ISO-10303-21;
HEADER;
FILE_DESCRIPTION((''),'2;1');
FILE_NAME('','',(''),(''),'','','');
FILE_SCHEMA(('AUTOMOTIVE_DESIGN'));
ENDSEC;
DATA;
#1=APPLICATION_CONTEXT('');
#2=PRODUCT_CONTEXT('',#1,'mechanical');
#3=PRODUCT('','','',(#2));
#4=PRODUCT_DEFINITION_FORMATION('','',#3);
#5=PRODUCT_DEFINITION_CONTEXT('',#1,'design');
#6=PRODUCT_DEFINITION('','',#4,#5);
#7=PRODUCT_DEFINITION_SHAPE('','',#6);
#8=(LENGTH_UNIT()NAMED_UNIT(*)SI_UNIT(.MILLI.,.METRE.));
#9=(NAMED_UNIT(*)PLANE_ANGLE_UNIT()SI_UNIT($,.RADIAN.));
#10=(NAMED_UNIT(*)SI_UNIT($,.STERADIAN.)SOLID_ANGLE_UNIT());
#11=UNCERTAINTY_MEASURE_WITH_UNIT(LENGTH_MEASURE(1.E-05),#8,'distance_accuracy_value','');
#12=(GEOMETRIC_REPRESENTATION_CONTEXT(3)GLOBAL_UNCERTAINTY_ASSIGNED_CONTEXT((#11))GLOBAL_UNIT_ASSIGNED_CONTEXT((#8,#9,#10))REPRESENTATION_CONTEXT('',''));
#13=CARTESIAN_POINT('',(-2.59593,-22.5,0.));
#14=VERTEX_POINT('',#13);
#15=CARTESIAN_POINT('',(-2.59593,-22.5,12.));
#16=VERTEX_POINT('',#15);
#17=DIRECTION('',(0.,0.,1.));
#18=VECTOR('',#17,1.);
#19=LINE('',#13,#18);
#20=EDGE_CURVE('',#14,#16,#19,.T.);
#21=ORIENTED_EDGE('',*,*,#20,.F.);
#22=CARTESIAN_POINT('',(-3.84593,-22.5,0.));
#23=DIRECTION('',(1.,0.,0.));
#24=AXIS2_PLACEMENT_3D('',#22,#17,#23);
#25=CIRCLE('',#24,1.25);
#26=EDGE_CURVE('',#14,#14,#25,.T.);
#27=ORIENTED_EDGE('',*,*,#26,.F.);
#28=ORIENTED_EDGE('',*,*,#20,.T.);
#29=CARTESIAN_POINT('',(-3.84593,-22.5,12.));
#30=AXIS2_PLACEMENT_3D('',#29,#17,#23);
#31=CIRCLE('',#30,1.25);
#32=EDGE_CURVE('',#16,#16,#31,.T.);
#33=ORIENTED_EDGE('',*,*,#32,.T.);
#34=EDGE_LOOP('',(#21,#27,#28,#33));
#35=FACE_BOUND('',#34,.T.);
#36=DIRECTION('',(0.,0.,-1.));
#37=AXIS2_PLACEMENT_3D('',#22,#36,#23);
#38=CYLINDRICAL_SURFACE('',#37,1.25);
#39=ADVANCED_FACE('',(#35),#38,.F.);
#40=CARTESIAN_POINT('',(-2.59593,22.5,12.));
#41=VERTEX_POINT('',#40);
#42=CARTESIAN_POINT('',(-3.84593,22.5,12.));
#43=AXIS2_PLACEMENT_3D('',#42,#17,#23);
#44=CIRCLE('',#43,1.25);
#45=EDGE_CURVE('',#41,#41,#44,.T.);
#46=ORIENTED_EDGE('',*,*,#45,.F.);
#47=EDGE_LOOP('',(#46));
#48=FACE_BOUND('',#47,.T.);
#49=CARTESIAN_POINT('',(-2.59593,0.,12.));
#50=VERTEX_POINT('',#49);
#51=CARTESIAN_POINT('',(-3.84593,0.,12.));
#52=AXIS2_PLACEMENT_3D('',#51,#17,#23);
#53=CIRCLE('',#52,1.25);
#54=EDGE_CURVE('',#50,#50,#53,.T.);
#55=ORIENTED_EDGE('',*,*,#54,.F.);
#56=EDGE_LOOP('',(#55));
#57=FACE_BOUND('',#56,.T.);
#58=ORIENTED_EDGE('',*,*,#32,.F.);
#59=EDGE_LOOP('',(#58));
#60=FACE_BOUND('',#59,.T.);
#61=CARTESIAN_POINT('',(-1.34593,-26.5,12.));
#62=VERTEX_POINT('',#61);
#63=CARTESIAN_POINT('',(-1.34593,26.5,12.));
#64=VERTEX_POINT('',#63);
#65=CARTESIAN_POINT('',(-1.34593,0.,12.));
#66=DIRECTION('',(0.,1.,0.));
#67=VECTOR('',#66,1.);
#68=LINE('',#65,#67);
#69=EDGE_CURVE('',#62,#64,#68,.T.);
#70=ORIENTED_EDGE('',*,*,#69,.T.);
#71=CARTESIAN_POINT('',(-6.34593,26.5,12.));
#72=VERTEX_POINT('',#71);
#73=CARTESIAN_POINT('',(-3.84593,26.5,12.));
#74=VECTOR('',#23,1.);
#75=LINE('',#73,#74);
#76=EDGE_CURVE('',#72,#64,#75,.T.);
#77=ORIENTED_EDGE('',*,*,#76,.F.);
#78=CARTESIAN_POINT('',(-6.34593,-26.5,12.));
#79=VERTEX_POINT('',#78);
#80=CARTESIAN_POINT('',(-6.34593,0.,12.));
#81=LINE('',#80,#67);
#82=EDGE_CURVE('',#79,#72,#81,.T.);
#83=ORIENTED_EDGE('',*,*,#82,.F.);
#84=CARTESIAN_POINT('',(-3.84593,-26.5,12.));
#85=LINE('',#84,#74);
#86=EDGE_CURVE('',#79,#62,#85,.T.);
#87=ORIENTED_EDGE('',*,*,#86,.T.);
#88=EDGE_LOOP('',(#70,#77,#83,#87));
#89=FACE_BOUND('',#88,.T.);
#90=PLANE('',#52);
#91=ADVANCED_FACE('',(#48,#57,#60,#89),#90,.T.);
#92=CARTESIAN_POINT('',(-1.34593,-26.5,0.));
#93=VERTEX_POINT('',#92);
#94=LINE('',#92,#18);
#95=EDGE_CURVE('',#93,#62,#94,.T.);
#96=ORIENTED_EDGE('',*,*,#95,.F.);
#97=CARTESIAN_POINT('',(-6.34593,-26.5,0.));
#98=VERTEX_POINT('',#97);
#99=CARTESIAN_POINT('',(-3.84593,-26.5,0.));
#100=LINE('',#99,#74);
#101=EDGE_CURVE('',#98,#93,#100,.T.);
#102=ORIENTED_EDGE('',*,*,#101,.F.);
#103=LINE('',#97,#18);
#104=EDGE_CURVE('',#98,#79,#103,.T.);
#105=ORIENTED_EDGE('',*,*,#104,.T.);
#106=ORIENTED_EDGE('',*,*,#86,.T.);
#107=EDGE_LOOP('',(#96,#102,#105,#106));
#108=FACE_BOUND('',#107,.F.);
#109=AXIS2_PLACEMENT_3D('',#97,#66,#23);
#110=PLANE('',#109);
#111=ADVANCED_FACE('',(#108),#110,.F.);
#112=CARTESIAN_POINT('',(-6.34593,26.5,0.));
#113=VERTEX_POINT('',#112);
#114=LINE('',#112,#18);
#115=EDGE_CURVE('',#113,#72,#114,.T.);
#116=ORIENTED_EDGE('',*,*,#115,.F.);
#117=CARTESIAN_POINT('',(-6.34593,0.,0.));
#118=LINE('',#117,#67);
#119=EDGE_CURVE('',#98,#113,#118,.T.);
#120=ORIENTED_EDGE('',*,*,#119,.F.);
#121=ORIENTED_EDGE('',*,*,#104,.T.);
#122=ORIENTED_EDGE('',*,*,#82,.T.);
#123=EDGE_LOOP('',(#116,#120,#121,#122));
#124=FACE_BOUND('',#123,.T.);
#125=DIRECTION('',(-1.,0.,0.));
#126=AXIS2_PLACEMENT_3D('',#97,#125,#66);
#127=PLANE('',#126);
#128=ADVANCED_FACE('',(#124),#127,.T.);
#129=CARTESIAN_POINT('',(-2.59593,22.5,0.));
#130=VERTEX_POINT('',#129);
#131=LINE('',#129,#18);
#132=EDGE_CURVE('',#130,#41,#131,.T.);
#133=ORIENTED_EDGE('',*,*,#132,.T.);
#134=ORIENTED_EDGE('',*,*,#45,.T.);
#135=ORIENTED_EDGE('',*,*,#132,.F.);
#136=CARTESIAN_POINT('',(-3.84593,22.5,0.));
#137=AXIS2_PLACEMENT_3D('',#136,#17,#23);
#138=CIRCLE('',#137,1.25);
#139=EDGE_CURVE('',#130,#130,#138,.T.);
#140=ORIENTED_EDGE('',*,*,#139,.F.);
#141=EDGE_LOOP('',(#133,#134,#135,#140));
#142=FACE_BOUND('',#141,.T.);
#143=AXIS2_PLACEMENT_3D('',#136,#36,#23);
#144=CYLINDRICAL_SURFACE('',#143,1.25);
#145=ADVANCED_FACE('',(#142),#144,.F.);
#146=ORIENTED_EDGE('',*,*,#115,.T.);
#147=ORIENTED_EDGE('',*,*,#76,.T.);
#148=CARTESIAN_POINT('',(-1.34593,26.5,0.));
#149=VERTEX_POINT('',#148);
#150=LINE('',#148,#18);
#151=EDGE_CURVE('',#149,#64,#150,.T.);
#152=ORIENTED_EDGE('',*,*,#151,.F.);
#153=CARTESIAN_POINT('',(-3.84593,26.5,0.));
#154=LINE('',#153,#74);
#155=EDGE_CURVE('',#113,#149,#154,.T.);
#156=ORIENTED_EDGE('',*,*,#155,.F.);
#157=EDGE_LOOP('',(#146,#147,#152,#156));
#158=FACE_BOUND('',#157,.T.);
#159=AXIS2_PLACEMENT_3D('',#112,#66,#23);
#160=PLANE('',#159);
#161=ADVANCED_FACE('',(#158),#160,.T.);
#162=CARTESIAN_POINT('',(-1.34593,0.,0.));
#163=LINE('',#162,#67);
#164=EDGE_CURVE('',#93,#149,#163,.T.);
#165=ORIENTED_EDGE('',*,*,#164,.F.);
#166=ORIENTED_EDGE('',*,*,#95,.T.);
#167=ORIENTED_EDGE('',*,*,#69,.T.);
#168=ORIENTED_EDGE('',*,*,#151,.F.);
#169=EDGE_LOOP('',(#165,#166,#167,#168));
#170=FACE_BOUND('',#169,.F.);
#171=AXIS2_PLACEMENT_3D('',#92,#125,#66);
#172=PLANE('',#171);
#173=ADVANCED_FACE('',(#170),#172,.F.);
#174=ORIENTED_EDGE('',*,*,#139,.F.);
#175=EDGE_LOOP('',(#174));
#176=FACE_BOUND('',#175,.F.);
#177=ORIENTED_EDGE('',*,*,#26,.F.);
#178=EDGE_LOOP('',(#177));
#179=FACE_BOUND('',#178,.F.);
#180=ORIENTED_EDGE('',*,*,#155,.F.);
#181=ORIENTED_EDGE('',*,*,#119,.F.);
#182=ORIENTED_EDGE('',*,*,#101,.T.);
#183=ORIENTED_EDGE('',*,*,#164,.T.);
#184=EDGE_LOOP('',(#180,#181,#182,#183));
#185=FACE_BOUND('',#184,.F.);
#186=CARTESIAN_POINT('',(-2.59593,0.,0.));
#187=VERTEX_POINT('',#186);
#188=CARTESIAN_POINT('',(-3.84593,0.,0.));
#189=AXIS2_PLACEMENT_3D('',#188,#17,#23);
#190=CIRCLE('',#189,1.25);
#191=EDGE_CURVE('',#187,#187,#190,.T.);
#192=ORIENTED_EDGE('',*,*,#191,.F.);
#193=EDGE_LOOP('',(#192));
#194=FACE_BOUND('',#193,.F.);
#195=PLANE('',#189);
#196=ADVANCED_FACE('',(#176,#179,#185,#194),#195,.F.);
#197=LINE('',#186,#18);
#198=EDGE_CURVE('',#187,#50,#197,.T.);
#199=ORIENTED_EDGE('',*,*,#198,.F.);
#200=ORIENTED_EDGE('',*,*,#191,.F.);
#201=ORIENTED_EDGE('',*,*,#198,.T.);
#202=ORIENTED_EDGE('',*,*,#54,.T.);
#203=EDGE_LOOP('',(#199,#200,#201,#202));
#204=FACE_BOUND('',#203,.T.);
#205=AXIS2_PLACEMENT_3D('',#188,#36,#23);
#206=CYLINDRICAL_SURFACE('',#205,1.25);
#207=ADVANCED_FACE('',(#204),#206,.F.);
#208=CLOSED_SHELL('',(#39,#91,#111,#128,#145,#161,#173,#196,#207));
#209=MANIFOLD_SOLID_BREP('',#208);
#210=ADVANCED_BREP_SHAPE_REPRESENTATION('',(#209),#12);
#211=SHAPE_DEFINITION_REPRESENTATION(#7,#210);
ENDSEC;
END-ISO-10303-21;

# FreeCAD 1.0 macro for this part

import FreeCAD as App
import Part
import Sketcher
from FreeCAD import Vector
Q = App.Units.Quantity


def add_polygon(sketch, points):
    """Adds a closed chain of lines whose ends are joined by coincident constraints."""
    first, n = sketch.GeometryCount, len(points)
    for a, b in zip(points, points[1:] + points[:1]):
        sketch.addGeometry(Part.LineSegment(App.Vector(*a, 0), App.Vector(*b, 0)), False)
    for i in range(n):
        sketch.addConstraint(Sketcher.Constraint("Coincident", first + i, 2, first + (i + 1) % n, 1))

doc = App.newDocument("Part")
body = doc.addObject("PartDesign::Body", "Body")

# Sketch on XY plane
sketch1 = body.newObject("Sketcher::SketchObject", "Sketch")
sketch1.AttachmentSupport = (doc.getObject("XY_Plane"), [""])
sketch1.MapMode = "FlatFace"
add_polygon(sketch1, [(-6.3, 26.5), (-6.3, -26.5), (-1.3, -26.5), (-1.3, 26.5)])  # lines 0-3
sketch1.addGeometry(Part.Circle(Vector(-3.8, -22.5, 0), Vector(0, 0, 1), 1.2), False)  # 4
sketch1.addGeometry(Part.Circle(Vector(-3.8, 0, 0), Vector(0, 0, 1), 1.2), False)  # 5
sketch1.addGeometry(Part.Circle(Vector(-3.8, 22.5, 0), Vector(0, 0, 1), 1.2), False)  # 6
sketch1.addConstraint([
    Sketcher.Constraint("Vertical", 0),
    Sketcher.Constraint("Horizontal", 1),
    Sketcher.Constraint("Vertical", 2),
    Sketcher.Constraint("Horizontal", 3),
    Sketcher.Constraint("Equal", 4, 5),
    Sketcher.Constraint("Equal", 5, 6),
    Sketcher.Constraint("Symmetric", 4, 3, 6, 3, -1),
    Sketcher.Constraint("PointOnObject", 5, 3, -1),
    Sketcher.Constraint("Vertical", 4, 3, 5, 3),
    Sketcher.Constraint("Diameter", 4, Q("2.5 mm")),
    Sketcher.Constraint("DistanceX", 1, 1, 1, 2, Q("5 mm")),
    Sketcher.Constraint("DistanceY", 0, 2, 0, 1, Q("53 mm")),
    Sketcher.Constraint("DistanceY", 4, 3, 6, 3, Q("45 mm")),
    Sketcher.Constraint("DistanceY", 0, 2, 4, 3, Q("4 mm")),
    Sketcher.Constraint("DistanceX", 0, 2, 4, 3, Q("2.5 mm")),
    Sketcher.Constraint("DistanceX", 4, 3, -1, 1, Q("3.84593 mm")),
])
pad1 = body.newObject("PartDesign::Pad", "Pad")
pad1.Profile = sketch1
pad1.Length = 12

doc.recompute()
